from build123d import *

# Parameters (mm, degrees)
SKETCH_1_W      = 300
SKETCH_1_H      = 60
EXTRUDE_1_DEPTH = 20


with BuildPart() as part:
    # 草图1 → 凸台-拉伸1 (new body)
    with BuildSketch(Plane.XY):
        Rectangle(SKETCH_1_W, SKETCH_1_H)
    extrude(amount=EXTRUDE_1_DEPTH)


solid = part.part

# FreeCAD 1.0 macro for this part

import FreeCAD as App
import Part
import Sketcher

V = App.Vector

doc = App.newDocument("Part")
body = doc.addObject("PartDesign::Body", "Body")

sketch1 = body.newObject("Sketcher::SketchObject", "Sketch")
sketch1.AttachmentSupport = (doc.getObject("XY_Plane"), [""])
sketch1.MapMode = "FlatFace"
sketch1.addGeometry(Part.LineSegment(V(-150, 30, 0), V(-150, -30, 0)), False)
sketch1.addGeometry(Part.LineSegment(V(-150, -30, 0), V(150, -30, 0)), False)
sketch1.addGeometry(Part.LineSegment(V(150, -30, 0), V(150, 30, 0)), False)
sketch1.addGeometry(Part.LineSegment(V(150, 30, 0), V(-150, 30, 0)), False)
sketch1.addConstraint(Sketcher.Constraint("Coincident", 0, 2, 1, 1))
sketch1.addConstraint(Sketcher.Constraint("Coincident", 1, 2, 2, 1))
sketch1.addConstraint(Sketcher.Constraint("Coincident", 2, 2, 3, 1))
sketch1.addConstraint(Sketcher.Constraint("Coincident", 3, 2, 0, 1))
sketch1.addConstraint(Sketcher.Constraint("Vertical", 0))
sketch1.addConstraint(Sketcher.Constraint("Horizontal", 1))
sketch1.addConstraint(Sketcher.Constraint("Vertical", 2))
sketch1.addConstraint(Sketcher.Constraint("Horizontal", 3))
sketch1.addConstraint(Sketcher.Constraint("Symmetric", 0, 2, 2, 2, -1, 1))
sketch1.addConstraint(Sketcher.Constraint("DistanceX", 1, 1, 1, 2, 300.0))
sketch1.addConstraint(Sketcher.Constraint("DistanceY", 0, 2, 0, 1, 60.0))
pad1 = body.newObject("PartDesign::Pad", "Pad")
pad1.Profile = sketch1
pad1.Length = 20

doc.recompute()
